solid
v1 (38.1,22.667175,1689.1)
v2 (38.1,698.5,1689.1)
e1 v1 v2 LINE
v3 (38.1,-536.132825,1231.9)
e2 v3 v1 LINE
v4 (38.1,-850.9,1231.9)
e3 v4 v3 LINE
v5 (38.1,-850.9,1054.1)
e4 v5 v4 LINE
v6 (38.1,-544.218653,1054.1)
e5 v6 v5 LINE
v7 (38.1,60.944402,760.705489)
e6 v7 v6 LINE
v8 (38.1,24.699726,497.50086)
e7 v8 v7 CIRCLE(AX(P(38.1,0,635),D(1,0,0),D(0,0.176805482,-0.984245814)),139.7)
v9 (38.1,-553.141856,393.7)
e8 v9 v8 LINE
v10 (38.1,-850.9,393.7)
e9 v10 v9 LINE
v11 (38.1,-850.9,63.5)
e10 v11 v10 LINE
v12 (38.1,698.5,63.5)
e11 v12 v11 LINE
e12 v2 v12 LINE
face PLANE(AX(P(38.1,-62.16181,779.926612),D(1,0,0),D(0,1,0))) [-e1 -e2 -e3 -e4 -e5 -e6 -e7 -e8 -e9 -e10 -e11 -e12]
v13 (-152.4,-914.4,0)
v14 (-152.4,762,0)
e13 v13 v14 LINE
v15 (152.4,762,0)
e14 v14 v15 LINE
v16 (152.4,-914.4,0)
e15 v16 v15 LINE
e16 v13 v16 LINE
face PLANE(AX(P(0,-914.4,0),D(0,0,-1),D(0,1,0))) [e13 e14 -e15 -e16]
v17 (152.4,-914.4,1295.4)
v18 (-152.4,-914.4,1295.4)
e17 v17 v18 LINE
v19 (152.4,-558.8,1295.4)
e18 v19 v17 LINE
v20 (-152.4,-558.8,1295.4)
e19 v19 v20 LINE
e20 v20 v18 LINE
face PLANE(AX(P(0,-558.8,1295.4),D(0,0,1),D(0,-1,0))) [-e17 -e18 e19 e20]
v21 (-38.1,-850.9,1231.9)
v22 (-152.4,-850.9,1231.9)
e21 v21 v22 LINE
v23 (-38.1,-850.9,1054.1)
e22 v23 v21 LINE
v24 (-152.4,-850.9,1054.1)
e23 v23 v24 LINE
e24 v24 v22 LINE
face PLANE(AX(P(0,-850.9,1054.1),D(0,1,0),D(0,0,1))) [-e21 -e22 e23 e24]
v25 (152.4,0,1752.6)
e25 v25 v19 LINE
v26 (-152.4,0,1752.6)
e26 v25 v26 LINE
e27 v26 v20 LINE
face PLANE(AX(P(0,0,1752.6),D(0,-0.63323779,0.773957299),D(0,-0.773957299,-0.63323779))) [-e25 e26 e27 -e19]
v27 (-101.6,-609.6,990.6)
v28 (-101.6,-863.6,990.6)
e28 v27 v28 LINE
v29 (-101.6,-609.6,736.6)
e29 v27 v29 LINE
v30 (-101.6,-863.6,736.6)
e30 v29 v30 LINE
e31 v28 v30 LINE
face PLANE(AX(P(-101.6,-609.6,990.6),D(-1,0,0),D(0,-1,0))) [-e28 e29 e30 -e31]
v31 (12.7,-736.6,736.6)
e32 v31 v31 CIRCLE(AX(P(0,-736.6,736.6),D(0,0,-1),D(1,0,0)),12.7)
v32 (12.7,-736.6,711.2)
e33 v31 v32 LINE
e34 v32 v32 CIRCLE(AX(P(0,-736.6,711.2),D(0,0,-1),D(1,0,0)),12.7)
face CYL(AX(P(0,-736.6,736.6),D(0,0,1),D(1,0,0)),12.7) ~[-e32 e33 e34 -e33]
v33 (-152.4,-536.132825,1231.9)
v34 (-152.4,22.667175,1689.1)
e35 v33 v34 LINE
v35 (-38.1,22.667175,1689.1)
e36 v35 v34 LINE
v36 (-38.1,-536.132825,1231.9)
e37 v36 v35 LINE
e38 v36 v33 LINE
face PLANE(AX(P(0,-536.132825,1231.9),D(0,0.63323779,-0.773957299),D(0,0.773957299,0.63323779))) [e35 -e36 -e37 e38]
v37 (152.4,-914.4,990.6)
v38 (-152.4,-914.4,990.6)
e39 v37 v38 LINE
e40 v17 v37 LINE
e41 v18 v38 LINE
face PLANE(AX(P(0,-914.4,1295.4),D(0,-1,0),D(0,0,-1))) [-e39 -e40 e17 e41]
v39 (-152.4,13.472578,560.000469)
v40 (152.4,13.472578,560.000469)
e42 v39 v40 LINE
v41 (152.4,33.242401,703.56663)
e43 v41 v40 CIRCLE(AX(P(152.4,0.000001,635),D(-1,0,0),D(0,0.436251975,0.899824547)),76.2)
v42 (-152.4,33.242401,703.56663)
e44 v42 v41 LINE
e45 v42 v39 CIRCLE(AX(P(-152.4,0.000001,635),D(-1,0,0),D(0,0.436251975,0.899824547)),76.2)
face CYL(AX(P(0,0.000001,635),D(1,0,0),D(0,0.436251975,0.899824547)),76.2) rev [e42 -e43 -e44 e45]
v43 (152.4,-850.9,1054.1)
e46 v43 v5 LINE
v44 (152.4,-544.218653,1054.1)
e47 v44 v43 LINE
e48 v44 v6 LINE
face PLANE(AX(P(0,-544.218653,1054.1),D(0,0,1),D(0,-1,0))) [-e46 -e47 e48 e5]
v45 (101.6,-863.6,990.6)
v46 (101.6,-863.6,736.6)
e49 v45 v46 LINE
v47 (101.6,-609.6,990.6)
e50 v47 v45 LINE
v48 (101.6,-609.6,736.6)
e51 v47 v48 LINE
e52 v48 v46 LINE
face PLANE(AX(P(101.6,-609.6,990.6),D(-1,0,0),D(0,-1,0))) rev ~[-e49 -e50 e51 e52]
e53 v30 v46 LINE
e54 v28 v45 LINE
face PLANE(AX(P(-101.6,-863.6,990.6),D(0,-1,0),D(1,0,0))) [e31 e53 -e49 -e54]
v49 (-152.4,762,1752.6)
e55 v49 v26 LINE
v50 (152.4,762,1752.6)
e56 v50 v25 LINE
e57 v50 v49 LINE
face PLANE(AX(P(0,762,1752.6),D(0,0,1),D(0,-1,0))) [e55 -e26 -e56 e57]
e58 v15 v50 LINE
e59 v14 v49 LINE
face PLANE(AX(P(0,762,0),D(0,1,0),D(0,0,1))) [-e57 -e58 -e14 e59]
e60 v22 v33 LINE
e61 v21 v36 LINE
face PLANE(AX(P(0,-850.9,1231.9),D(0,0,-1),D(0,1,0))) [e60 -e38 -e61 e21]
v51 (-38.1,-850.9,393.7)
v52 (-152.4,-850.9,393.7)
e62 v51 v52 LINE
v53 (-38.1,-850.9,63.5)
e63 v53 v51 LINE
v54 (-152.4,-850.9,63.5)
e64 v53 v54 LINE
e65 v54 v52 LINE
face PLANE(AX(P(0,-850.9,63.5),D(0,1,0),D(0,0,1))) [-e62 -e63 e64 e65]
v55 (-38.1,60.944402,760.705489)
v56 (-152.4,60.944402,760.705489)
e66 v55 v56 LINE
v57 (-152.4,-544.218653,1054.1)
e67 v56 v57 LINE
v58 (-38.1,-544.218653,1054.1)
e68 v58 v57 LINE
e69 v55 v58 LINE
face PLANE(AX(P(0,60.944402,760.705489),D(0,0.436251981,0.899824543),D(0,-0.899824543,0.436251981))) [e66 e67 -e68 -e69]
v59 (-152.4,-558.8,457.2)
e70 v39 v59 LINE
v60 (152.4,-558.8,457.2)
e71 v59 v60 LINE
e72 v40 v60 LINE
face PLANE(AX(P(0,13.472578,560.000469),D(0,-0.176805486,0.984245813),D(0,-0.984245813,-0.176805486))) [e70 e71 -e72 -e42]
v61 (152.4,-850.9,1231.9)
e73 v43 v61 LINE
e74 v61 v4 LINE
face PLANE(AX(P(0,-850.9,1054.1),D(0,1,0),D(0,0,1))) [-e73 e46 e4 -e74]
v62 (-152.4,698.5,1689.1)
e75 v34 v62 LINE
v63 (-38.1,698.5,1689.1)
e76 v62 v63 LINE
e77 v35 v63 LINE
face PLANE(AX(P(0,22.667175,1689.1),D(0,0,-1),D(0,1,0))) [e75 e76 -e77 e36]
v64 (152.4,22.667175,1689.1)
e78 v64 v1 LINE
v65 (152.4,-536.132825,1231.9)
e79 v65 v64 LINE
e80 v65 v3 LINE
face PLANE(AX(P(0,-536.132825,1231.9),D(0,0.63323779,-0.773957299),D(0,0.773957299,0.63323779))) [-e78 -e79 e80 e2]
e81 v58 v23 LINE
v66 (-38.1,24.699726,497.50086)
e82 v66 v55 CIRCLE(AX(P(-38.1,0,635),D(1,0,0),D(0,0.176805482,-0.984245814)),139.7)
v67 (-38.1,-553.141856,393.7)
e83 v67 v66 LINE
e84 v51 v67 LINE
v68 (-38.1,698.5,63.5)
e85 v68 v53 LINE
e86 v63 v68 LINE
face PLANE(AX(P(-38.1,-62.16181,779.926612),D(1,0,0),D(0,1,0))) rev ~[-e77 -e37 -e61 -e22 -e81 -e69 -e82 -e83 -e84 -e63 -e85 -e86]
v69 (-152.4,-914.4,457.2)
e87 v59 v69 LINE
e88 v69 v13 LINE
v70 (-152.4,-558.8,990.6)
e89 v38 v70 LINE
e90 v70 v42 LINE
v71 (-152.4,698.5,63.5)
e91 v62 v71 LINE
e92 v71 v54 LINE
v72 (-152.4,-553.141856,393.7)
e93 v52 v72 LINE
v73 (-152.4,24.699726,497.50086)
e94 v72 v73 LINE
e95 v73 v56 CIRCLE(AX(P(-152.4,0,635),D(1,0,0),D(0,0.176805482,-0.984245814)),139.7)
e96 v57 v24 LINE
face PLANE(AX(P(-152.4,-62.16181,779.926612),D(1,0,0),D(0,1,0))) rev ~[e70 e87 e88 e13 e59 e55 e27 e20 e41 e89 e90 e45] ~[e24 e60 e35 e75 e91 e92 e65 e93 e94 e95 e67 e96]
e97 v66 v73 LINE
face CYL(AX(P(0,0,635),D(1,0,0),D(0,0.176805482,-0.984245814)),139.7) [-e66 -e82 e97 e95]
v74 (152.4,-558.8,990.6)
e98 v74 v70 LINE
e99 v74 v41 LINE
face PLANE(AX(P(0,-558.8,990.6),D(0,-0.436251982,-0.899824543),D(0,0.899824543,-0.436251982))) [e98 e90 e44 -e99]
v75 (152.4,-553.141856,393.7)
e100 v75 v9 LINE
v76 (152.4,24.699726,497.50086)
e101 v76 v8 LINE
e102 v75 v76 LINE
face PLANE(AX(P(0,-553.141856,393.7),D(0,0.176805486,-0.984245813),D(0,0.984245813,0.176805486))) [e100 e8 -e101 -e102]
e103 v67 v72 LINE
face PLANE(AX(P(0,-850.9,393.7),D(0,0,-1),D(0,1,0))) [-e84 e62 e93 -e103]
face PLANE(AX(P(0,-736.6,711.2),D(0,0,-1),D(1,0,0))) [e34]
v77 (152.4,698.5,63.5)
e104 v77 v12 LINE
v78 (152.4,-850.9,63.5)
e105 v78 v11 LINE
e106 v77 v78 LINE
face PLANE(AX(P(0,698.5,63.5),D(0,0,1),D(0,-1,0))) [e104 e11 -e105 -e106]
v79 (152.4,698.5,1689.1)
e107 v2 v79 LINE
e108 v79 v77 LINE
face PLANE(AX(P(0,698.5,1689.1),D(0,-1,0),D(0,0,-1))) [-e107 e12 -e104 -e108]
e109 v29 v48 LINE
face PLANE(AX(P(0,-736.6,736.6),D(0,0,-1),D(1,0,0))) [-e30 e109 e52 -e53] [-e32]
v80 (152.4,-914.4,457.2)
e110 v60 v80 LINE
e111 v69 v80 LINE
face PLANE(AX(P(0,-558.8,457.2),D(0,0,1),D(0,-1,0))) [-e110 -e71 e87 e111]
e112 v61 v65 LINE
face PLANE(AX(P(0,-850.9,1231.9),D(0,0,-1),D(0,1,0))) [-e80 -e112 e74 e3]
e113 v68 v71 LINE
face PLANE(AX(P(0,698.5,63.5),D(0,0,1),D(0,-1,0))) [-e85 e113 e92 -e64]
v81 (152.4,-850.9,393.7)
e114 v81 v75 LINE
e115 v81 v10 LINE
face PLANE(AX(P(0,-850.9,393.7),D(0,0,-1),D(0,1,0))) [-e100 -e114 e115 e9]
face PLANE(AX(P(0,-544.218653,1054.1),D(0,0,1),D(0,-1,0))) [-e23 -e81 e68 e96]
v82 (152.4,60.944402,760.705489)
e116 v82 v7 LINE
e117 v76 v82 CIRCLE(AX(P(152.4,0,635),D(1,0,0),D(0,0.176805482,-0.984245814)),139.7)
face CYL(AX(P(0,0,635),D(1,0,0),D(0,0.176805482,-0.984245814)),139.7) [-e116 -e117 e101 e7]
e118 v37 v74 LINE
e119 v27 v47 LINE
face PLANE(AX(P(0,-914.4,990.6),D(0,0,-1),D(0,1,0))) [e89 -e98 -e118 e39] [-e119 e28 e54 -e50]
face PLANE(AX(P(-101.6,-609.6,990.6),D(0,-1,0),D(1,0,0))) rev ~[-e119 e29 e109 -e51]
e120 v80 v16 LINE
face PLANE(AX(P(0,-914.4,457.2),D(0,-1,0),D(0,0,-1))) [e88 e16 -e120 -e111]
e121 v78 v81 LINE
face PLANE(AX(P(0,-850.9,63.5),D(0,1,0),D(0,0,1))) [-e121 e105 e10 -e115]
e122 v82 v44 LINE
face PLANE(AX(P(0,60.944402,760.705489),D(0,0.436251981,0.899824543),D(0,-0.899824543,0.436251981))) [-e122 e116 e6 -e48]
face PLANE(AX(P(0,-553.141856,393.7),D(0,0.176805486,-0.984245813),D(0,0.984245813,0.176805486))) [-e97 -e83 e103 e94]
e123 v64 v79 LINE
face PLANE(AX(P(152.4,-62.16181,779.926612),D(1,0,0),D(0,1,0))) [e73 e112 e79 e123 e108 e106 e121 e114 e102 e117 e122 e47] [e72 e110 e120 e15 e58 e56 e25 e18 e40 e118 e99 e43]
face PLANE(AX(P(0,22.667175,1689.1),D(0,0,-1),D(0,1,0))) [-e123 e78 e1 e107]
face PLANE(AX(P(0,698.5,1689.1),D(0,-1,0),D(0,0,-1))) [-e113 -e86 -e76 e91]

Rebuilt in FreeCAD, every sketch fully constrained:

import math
import FreeCAD as App
import Part
import Sketcher
from FreeCAD import Vector
Q = App.Units.Quantity


def add_polygon(sketch, points):
    """Adds a closed chain of lines whose ends are joined by coincident constraints."""
    first, n = sketch.GeometryCount, len(points)
    for a, b in zip(points, points[1:] + points[:1]):
        sketch.addGeometry(Part.LineSegment(App.Vector(*a, 0), App.Vector(*b, 0)), False)
    for i in range(n):
        sketch.addConstraint(Sketcher.Constraint("Coincident", first + i, 2, first + (i + 1) % n, 1))

doc = App.newDocument("Part")
body = doc.addObject("PartDesign::Body", "Body")

# Sketch on YZ plane
sketch1 = body.newObject("Sketcher::SketchObject", "Sketch")
sketch1.AttachmentSupport = (doc.getObject("YZ_Plane"), [""])
sketch1.MapMode = "FlatFace"
sketch1.addGeometry(Part.ArcOfCircle(Part.Circle(Vector(0.000001, 635, 0), Vector(0, 0, 1), 76.2), math.radians(-79.816257), math.radians(64.135014)), False)
sketch1.addGeometry(Part.LineSegment(Vector(13.472578, 560.000469, 0), Vector(-558.8, 457.2, 0)), False)
sketch1.addGeometry(Part.LineSegment(Vector(-558.8, 457.2, 0), Vector(-914.4, 457.2, 0)), False)
sketch1.addGeometry(Part.LineSegment(Vector(-914.4, 457.2, 0), Vector(-914.4, 0, 0)), False)
sketch1.addGeometry(Part.LineSegment(Vector(-914.4, 0, 0), Vector(762, 0, 0)), False)
sketch1.addGeometry(Part.LineSegment(Vector(762, 0, 0), Vector(762, 1752.6, 0)), False)
sketch1.addGeometry(Part.LineSegment(Vector(762, 1752.6, 0), Vector(0, 1752.6, 0)), False)
sketch1.addGeometry(Part.LineSegment(Vector(0, 1752.6, 0), Vector(-558.8, 1295.4, 0)), False)
sketch1.addGeometry(Part.LineSegment(Vector(-558.8, 1295.4, 0), Vector(-914.4, 1295.4, 0)), False)
sketch1.addGeometry(Part.LineSegment(Vector(-914.4, 1295.4, 0), Vector(-914.4, 990.6, 0)), False)
sketch1.addGeometry(Part.LineSegment(Vector(-914.4, 990.6, 0), Vector(-558.8, 990.6, 0)), False)
sketch1.addGeometry(Part.LineSegment(Vector(-558.8, 990.6, 0), Vector(33.242401, 703.56663, 0)), False)
sketch1.addConstraint(Sketcher.Constraint("Tangent", 0, 1, 1, 1))
sketch1.addConstraint(Sketcher.Constraint("Coincident", 1, 2, 2, 1))
sketch1.addConstraint(Sketcher.Constraint("Coincident", 2, 2, 3, 1))
sketch1.addConstraint(Sketcher.Constraint("Coincident", 3, 2, 4, 1))
sketch1.addConstraint(Sketcher.Constraint("Coincident", 4, 2, 5, 1))
sketch1.addConstraint(Sketcher.Constraint("Coincident", 5, 2, 6, 1))
sketch1.addConstraint(Sketcher.Constraint("Coincident", 6, 2, 7, 1))
sketch1.addConstraint(Sketcher.Constraint("Coincident", 7, 2, 8, 1))
sketch1.addConstraint(Sketcher.Constraint("Coincident", 8, 2, 9, 1))
sketch1.addConstraint(Sketcher.Constraint("Coincident", 9, 2, 10, 1))
sketch1.addConstraint(Sketcher.Constraint("Coincident", 10, 2, 11, 1))
sketch1.addConstraint(Sketcher.Constraint("Tangent", 11, 2, 0, 2))
sketch1.addConstraint(Sketcher.Constraint("Horizontal", 2))
sketch1.addConstraint(Sketcher.Constraint("Vertical", 3))
sketch1.addConstraint(Sketcher.Constraint("Horizontal", 4))
sketch1.addConstraint(Sketcher.Constraint("Vertical", 5))
sketch1.addConstraint(Sketcher.Constraint("Horizontal", 6))
sketch1.addConstraint(Sketcher.Constraint("Horizontal", 8))
sketch1.addConstraint(Sketcher.Constraint("Vertical", 9))
sketch1.addConstraint(Sketcher.Constraint("Horizontal", 10))
sketch1.addConstraint(Sketcher.Constraint("PointOnObject", 0, 3, -2))
sketch1.addConstraint(Sketcher.Constraint("PointOnObject", 3, 2, -1))
sketch1.addConstraint(Sketcher.Constraint("PointOnObject", 6, 2, -2))
sketch1.addConstraint(Sketcher.Constraint("Vertical", 1, 2, 7, 2))
sketch1.addConstraint(Sketcher.Constraint("Vertical", 3, 2, 8, 2))
sketch1.addConstraint(Sketcher.Constraint("Vertical", 7, 2, 10, 2))
sketch1.addConstraint(Sketcher.Constraint("Radius", 0, Q("3 in")))
sketch1.addConstraint(Sketcher.Constraint("DistanceX", 2, 2, 2, 1, Q("14 in")))
sketch1.addConstraint(Sketcher.Constraint("DistanceX", 4, 1, 4, 2, Q("66 in")))
sketch1.addConstraint(Sketcher.Constraint("DistanceX", 6, 2, 6, 1, Q("30 in")))
sketch1.addConstraint(Sketcher.Constraint("DistanceY", 3, 2, 3, 1, Q("18 in")))
sketch1.addConstraint(Sketcher.Constraint("DistanceY", 5, 1, 5, 2, Q("69 in")))
sketch1.addConstraint(Sketcher.Constraint("DistanceY", 9, 2, 9, 1, Q("12 in")))
sketch1.addConstraint(Sketcher.Constraint("DistanceY", -1, 1, 0, 3, Q("25 in")))
sketch1.addConstraint(Sketcher.Constraint("DistanceY", -1, 1, 7, 2, Q("51 in")))
pad1 = body.newObject("PartDesign::Pad", "Pad")
pad1.Profile = sketch1
pad1.Length = Q("3 in")
pad1.Midplane = True
body2 = doc.addObject("PartDesign::Body", "Body001")

# Sketch on YZ plane
sketch2 = body2.newObject("Sketcher::SketchObject", "Sketch001")
sketch2.AttachmentSupport = (doc.getObject("YZ_Plane001"), [""])
sketch2.MapMode = "FlatFace"
sketch2.addGeometry(Part.LineSegment(Vector(-558.8, 990.6, 0), Vector(33.242401, 703.56663, 0)), False)
sketch2.addGeometry(Part.ArcOfCircle(Part.Circle(Vector(0.000001, 635, 0), Vector(0, 0, 1), 76.2), math.radians(-79.816257), math.radians(64.135014)), False)
sketch2.addGeometry(Part.LineSegment(Vector(13.472578, 560.000469, 0), Vector(-558.8, 457.2, 0)), False)
sketch2.addGeometry(Part.LineSegment(Vector(-558.8, 457.2, 0), Vector(-914.4, 457.2, 0)), False)
sketch2.addGeometry(Part.LineSegment(Vector(-914.4, 457.2, 0), Vector(-914.4, 0, 0)), False)
sketch2.addGeometry(Part.LineSegment(Vector(-914.4, 0, 0), Vector(762, 0, 0)), False)
sketch2.addGeometry(Part.LineSegment(Vector(762, 0, 0), Vector(762, 1752.6, 0)), False)
sketch2.addGeometry(Part.LineSegment(Vector(762, 1752.6, 0), Vector(0, 1752.6, 0)), False)
sketch2.addGeometry(Part.LineSegment(Vector(0, 1752.6, 0), Vector(-558.8, 1295.4, 0)), False)
sketch2.addGeometry(Part.LineSegment(Vector(-558.8, 1295.4, 0), Vector(-914.4, 1295.4, 0)), False)
sketch2.addGeometry(Part.LineSegment(Vector(-914.4, 1295.4, 0), Vector(-914.4, 990.6, 0)), False)
sketch2.addGeometry(Part.LineSegment(Vector(-914.4, 990.6, 0), Vector(-558.8, 990.6, 0)), False)
sketch2.addGeometry(Part.LineSegment(Vector(22.667175, 1689.1, 0), Vector(698.5, 1689.1, 0)), False)
sketch2.addGeometry(Part.LineSegment(Vector(698.5, 1689.1, 0), Vector(698.5, 63.5, 0)), False)
sketch2.addGeometry(Part.LineSegment(Vector(698.5, 63.5, 0), Vector(-850.9, 63.5, 0)), False)
sketch2.addGeometry(Part.LineSegment(Vector(-850.9, 63.5, 0), Vector(-850.9, 393.7, 0)), False)
sketch2.addGeometry(Part.LineSegment(Vector(-850.9, 393.7, 0), Vector(-553.141856, 393.7, 0)), False)
sketch2.addGeometry(Part.LineSegment(Vector(-553.141856, 393.7, 0), Vector(24.699726, 497.50086, 0)), False)
sketch2.addGeometry(Part.ArcOfCircle(Part.Circle(Vector(0, 635, 0), Vector(0, 0, 1), 139.7), math.radians(-79.816257), math.radians(64.135014)), False)
sketch2.addGeometry(Part.LineSegment(Vector(60.944402, 760.705489, 0), Vector(-544.218653, 1054.1, 0)), False)
sketch2.addGeometry(Part.LineSegment(Vector(-544.218653, 1054.1, 0), Vector(-850.9, 1054.1, 0)), False)
sketch2.addGeometry(Part.LineSegment(Vector(-850.9, 1054.1, 0), Vector(-850.9, 1231.9, 0)), False)
sketch2.addGeometry(Part.LineSegment(Vector(-850.9, 1231.9, 0), Vector(-536.132825, 1231.9, 0)), False)
sketch2.addGeometry(Part.LineSegment(Vector(-536.132825, 1231.9, 0), Vector(22.667175, 1689.1, 0)), False)
sketch2.addConstraint(Sketcher.Constraint("Tangent", 0, 2, 1, 2))
sketch2.addConstraint(Sketcher.Constraint("Tangent", 1, 1, 2, 1))
sketch2.addConstraint(Sketcher.Constraint("Coincident", 2, 2, 3, 1))
sketch2.addConstraint(Sketcher.Constraint("Coincident", 3, 2, 4, 1))
sketch2.addConstraint(Sketcher.Constraint("Coincident", 4, 2, 5, 1))
sketch2.addConstraint(Sketcher.Constraint("Coincident", 5, 2, 6, 1))
sketch2.addConstraint(Sketcher.Constraint("Coincident", 6, 2, 7, 1))
sketch2.addConstraint(Sketcher.Constraint("Coincident", 7, 2, 8, 1))
sketch2.addConstraint(Sketcher.Constraint("Coincident", 8, 2, 9, 1))
sketch2.addConstraint(Sketcher.Constraint("Coincident", 9, 2, 10, 1))
sketch2.addConstraint(Sketcher.Constraint("Coincident", 10, 2, 11, 1))
sketch2.addConstraint(Sketcher.Constraint("Coincident", 11, 2, 0, 1))
sketch2.addConstraint(Sketcher.Constraint("Coincident", 12, 2, 13, 1))
sketch2.addConstraint(Sketcher.Constraint("Coincident", 13, 2, 14, 1))
sketch2.addConstraint(Sketcher.Constraint("Coincident", 14, 2, 15, 1))
sketch2.addConstraint(Sketcher.Constraint("Coincident", 15, 2, 16, 1))
sketch2.addConstraint(Sketcher.Constraint("Coincident", 16, 2, 17, 1))
sketch2.addConstraint(Sketcher.Constraint("Tangent", 17, 2, 18, 1))
sketch2.addConstraint(Sketcher.Constraint("Tangent", 18, 2, 19, 1))
sketch2.addConstraint(Sketcher.Constraint("Coincident", 19, 2, 20, 1))
sketch2.addConstraint(Sketcher.Constraint("Coincident", 20, 2, 21, 1))
sketch2.addConstraint(Sketcher.Constraint("Coincident", 21, 2, 22, 1))
sketch2.addConstraint(Sketcher.Constraint("Coincident", 22, 2, 23, 1))
sketch2.addConstraint(Sketcher.Constraint("Coincident", 23, 2, 12, 1))
sketch2.addConstraint(Sketcher.Constraint("Horizontal", 3))
sketch2.addConstraint(Sketcher.Constraint("Vertical", 4))
sketch2.addConstraint(Sketcher.Constraint("Horizontal", 5))
sketch2.addConstraint(Sketcher.Constraint("Vertical", 6))
sketch2.addConstraint(Sketcher.Constraint("Horizontal", 7))
sketch2.addConstraint(Sketcher.Constraint("Horizontal", 9))
sketch2.addConstraint(Sketcher.Constraint("Vertical", 10))
sketch2.addConstraint(Sketcher.Constraint("Horizontal", 11))
sketch2.addConstraint(Sketcher.Constraint("Horizontal", 12))
sketch2.addConstraint(Sketcher.Constraint("Vertical", 13))
sketch2.addConstraint(Sketcher.Constraint("Horizontal", 14))
sketch2.addConstraint(Sketcher.Constraint("Vertical", 15))
sketch2.addConstraint(Sketcher.Constraint("Horizontal", 16))
sketch2.addConstraint(Sketcher.Constraint("Horizontal", 20))
sketch2.addConstraint(Sketcher.Constraint("Vertical", 21))
sketch2.addConstraint(Sketcher.Constraint("Horizontal", 22))
sketch2.addConstraint(Sketcher.Constraint("Coincident", 18, 3, 1, 3))
sketch2.addConstraint(Sketcher.Constraint("PointOnObject", 1, 3, -2))
sketch2.addConstraint(Sketcher.Constraint("PointOnObject", 4, 2, -1))
sketch2.addConstraint(Sketcher.Constraint("PointOnObject", 7, 2, -2))
sketch2.addConstraint(Sketcher.Constraint("Parallel", 2, 17))
sketch2.addConstraint(Sketcher.Constraint("Parallel", 0, 19))
sketch2.addConstraint(Sketcher.Constraint("Parallel", 8, 23))
sketch2.addConstraint(Sketcher.Constraint("Vertical", 2, 2, 8, 2))
sketch2.addConstraint(Sketcher.Constraint("Vertical", 4, 2, 9, 2))
sketch2.addConstraint(Sketcher.Constraint("Vertical", 8, 2, 11, 2))
sketch2.addConstraint(Sketcher.Constraint("Vertical", 15, 2, 20, 2))
sketch2.addConstraint(Sketcher.Constraint("Equal", 8, 23))
sketch2.addConstraint(Sketcher.Constraint("Radius", 1, Q("3 in")))
sketch2.addConstraint(Sketcher.Constraint("Radius", 18, Q("5.5 in")))
sketch2.addConstraint(Sketcher.Constraint("DistanceX", 3, 2, 3, 1, Q("14 in")))
sketch2.addConstraint(Sketcher.Constraint("DistanceX", 5, 1, 5, 2, Q("66 in")))
sketch2.addConstraint(Sketcher.Constraint("DistanceX", 7, 2, 7, 1, Q("30 in")))
sketch2.addConstraint(Sketcher.Constraint("DistanceX", 14, 2, 14, 1, Q("61 in")))
sketch2.addConstraint(Sketcher.Constraint("DistanceY", 4, 2, 4, 1, Q("18 in")))
sketch2.addConstraint(Sketcher.Constraint("DistanceY", 6, 1, 6, 2, Q("69 in")))
sketch2.addConstraint(Sketcher.Constraint("DistanceY", 10, 2, 10, 1, Q("12 in")))
sketch2.addConstraint(Sketcher.Constraint("DistanceY", 13, 2, 13, 1, Q("64 in")))
sketch2.addConstraint(Sketcher.Constraint("DistanceY", 15, 1, 15, 2, Q("13 in")))
sketch2.addConstraint(Sketcher.Constraint("DistanceY", 21, 1, 21, 2, Q("7 in")))
sketch2.addConstraint(Sketcher.Constraint("DistanceY", -1, 1, 1, 3, Q("25 in")))
sketch2.addConstraint(Sketcher.Constraint("DistanceY", -1, 1, 8, 2, Q("51 in")))
sketch2.addConstraint(Sketcher.Constraint("DistanceX", -1, 1, 12, 2, Q("27.5 in")))
sketch2.addConstraint(Sketcher.Constraint("DistanceY", -1, 1, 12, 2, Q("66.5 in")))
sketch2.addConstraint(Sketcher.Constraint("DistanceX", 12, 1, 12, 2, Q("675.832825 mm")))
pad2 = body2.newObject("PartDesign::Pad", "Pad001")
pad2.Profile = sketch2
pad2.Length = Q("12 in")
pad2.Midplane = True
doc.recompute()

boolean = body.newObject("PartDesign::Boolean", "Boolean")
boolean.Type = "Fuse"
boolean.addObjects([body2])

# Sketch on XY plane
sketch3 = body.newObject("Sketcher::SketchObject", "Sketch002")
sketch3.AttachmentSupport = (doc.getObject("XY_Plane"), [""])
sketch3.MapMode = "FlatFace"
sketch3.AttachmentOffset = App.Placement(Vector(0, 0, 39 * 25.4), App.Rotation())
add_polygon(sketch3, [(-101.6, -863.6), (-101.6, -609.6), (101.6, -609.6), (101.6, -863.6)])  # lines 0-3
sketch3.addConstraint(Sketcher.Constraint("Vertical", 0))
sketch3.addConstraint(Sketcher.Constraint("Horizontal", 1))
sketch3.addConstraint(Sketcher.Constraint("Vertical", 2))
sketch3.addConstraint(Sketcher.Constraint("Horizontal", 3))
sketch3.addConstraint(Sketcher.Constraint("DistanceX", 1, 1, 1, 2, Q("8 in")))
sketch3.addConstraint(Sketcher.Constraint("DistanceY", 0, 1, 0, 2, Q("10 in")))
sketch3.addConstraint(Sketcher.Constraint("DistanceX", 0, 2, -1, 1, Q("4 in")))
sketch3.addConstraint(Sketcher.Constraint("DistanceY", 0, 2, -1, 1, Q("24 in")))
pad3 = body.newObject("PartDesign::Pad", "Pad002")
pad3.Profile = sketch3
pad3.Length = Q("10 in")
pad3.Reversed = True

# Sketch on XY plane
sketch4 = body.newObject("Sketcher::SketchObject", "Sketch003")
sketch4.AttachmentSupport = (doc.getObject("XY_Plane"), [""])
sketch4.MapMode = "FlatFace"
sketch4.AttachmentOffset = App.Placement(Vector(0, 0, 29 * 25.4), App.Rotation())
sketch4.addGeometry(Part.Circle(Vector(0, -736.6, 0), Vector(0, 0, 1), 12.7), False)
sketch4.addConstraint(Sketcher.Constraint("PointOnObject", 0, 3, -2))
sketch4.addConstraint(Sketcher.Constraint("Diameter", 0, Q("1 in")))
sketch4.addConstraint(Sketcher.Constraint("DistanceY", 0, 3, -1, 1, Q("29 in")))
pad4 = body.newObject("PartDesign::Pad", "Pad003")
pad4.Profile = sketch4
pad4.Length = Q("1 in")
pad4.Reversed = True

doc.recompute()
